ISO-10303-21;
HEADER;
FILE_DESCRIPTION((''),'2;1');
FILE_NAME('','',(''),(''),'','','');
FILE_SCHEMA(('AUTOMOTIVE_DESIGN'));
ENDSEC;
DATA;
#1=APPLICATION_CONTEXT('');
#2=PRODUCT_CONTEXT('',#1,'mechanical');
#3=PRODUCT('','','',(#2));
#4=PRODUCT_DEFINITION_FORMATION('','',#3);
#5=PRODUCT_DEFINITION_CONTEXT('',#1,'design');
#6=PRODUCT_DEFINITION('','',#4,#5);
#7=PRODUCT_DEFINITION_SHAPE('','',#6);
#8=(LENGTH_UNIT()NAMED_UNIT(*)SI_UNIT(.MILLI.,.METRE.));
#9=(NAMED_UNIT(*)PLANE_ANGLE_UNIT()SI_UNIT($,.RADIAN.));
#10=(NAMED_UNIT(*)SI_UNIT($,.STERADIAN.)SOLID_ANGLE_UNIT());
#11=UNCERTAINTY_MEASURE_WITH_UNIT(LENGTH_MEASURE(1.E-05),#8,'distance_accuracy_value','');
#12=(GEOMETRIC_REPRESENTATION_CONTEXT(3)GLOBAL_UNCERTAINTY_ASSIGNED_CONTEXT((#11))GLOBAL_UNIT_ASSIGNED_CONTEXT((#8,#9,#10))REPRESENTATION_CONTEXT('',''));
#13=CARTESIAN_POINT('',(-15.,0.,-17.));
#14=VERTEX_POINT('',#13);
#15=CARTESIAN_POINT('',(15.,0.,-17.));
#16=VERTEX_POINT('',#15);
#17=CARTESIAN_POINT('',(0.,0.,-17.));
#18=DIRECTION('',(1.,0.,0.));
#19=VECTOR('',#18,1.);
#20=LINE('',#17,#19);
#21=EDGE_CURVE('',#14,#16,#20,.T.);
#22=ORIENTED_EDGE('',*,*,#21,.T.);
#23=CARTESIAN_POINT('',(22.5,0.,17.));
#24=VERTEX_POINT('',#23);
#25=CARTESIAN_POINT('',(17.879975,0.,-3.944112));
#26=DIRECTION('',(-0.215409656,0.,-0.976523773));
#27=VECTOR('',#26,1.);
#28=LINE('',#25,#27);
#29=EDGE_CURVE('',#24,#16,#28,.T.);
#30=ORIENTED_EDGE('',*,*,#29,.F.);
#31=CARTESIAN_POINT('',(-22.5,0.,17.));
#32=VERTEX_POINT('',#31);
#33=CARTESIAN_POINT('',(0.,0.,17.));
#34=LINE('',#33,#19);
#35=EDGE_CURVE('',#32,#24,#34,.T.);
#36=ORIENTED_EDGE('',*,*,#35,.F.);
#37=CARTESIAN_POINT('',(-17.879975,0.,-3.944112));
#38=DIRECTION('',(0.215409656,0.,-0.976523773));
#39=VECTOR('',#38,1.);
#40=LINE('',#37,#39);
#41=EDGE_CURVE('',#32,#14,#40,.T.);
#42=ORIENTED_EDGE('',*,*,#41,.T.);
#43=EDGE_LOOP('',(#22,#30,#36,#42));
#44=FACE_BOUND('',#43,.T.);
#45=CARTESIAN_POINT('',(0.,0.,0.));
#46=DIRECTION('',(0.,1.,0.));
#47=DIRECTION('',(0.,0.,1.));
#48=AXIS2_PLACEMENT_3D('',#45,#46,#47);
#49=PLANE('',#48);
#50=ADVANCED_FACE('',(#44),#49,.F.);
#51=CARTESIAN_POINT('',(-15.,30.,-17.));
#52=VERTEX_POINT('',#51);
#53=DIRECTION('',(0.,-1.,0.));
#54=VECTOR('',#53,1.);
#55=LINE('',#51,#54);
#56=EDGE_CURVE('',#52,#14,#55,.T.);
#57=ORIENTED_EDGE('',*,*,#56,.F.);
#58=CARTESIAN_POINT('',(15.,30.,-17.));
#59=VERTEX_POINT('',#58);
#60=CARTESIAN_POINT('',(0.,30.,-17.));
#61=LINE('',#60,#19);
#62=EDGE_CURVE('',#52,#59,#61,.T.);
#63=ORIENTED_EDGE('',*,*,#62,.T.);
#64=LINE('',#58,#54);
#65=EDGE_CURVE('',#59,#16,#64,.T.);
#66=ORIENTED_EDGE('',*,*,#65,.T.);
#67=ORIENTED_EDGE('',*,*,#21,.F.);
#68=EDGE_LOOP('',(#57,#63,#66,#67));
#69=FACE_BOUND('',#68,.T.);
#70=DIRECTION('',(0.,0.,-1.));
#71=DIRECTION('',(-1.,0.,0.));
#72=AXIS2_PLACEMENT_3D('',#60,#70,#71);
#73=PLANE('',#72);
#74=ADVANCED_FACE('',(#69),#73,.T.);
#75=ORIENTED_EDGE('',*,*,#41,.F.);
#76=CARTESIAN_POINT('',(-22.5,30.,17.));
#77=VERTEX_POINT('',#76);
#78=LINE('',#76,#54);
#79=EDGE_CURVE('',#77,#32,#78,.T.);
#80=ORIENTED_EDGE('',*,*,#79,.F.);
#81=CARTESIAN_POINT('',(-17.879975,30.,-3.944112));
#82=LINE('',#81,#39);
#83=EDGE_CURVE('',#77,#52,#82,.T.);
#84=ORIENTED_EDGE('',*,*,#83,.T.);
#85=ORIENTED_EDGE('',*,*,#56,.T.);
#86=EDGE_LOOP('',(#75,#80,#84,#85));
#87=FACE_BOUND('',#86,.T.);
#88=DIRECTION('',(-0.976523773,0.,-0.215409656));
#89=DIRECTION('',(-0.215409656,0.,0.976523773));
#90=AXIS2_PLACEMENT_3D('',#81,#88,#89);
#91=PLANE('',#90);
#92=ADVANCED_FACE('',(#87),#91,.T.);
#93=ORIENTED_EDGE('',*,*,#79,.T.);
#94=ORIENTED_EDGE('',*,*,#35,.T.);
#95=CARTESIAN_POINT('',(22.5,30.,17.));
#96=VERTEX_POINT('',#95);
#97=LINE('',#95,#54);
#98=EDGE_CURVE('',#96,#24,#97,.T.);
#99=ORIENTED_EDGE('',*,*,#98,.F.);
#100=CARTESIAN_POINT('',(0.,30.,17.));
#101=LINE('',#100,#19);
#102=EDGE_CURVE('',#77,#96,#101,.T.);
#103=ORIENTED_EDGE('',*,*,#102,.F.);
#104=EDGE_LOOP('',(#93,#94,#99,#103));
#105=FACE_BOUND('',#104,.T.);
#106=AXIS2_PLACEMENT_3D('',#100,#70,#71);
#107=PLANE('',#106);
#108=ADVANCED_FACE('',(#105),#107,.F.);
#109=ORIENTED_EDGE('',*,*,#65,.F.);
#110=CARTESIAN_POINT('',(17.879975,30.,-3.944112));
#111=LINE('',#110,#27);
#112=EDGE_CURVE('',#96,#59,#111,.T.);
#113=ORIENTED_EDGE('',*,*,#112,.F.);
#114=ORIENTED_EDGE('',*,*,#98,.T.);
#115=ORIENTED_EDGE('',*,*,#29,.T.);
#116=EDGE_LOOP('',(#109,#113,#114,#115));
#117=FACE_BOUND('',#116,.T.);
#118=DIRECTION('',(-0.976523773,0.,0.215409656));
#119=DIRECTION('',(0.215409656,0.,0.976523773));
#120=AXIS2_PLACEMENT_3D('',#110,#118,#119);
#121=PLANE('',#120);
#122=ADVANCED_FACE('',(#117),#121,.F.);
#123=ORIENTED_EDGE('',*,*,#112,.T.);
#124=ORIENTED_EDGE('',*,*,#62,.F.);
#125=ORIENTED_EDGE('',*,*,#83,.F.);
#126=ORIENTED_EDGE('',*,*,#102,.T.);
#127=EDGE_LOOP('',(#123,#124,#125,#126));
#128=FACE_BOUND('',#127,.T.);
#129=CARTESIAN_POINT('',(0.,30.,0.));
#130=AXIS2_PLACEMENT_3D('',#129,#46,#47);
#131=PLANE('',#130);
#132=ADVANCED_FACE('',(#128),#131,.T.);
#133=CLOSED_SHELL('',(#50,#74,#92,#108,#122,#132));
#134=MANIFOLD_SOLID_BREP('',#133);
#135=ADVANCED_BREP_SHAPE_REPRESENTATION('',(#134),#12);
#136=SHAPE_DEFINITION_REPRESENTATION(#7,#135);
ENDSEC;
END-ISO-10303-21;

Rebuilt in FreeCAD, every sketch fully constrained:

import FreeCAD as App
import Part
import Sketcher


def add_polygon(sketch, points):
    """Adds a closed chain of lines whose ends are joined by coincident constraints."""
    first, n = sketch.GeometryCount, len(points)
    for a, b in zip(points, points[1:] + points[:1]):
        sketch.addGeometry(Part.LineSegment(App.Vector(*a, 0), App.Vector(*b, 0)), False)
    for i in range(n):
        sketch.addConstraint(Sketcher.Constraint("Coincident", first + i, 2, first + (i + 1) % n, 1))

doc = App.newDocument("Part")
params = doc.addObject("Spreadsheet::Sheet", "Params")
for row, (alias, value) in enumerate([
    ("sketch1_width", "45 mm"),
    ("sketch1_width2", "30 mm"),
    ("pad1_length", "30 mm"),
], start=1):
    params.set(f"A{row}", alias)
    params.set(f"B{row}", "=" + value)
    params.setAlias(f"B{row}", alias)

body = doc.addObject("PartDesign::Body", "Body")

# Sketch on XZ plane
sketch1 = body.newObject("Sketcher::SketchObject", "Sketch")
sketch1.AttachmentSupport = (doc.getObject("XZ_Plane"), [""])
sketch1.MapMode = "FlatFace"
add_polygon(sketch1, [(-15, -17), (-22, 17), (22, 17), (15, -17)])  # lines 0-3
sketch1.addConstraint([
    Sketcher.Constraint("Horizontal", 1),
    Sketcher.Constraint("Horizontal", 3),
    Sketcher.Constraint("Equal", 0, 2),
    Sketcher.Constraint("DistanceX", 1, 1, 1, 2, 45.0),
    Sketcher.Constraint("DistanceX", 3, 2, 3, 1, 30.0),
    Sketcher.Constraint("DistanceY", -1, 1, 0, 2, 17.0),
    Sketcher.Constraint("DistanceX", -1, 1, 2, 2, 15.0),
    Sketcher.Constraint("DistanceY", 2, 2, -1, 1, 17.0),
])
sketch1.setExpression("Constraints[7]", "Params.sketch1_width")
sketch1.setExpression("Constraints[8]", "Params.sketch1_width2")
pad1 = body.newObject("PartDesign::Pad", "Pad")
pad1.Profile = sketch1
pad1.setExpression("Length", "Params.pad1_length")
pad1.Reversed = True

doc.recompute()
